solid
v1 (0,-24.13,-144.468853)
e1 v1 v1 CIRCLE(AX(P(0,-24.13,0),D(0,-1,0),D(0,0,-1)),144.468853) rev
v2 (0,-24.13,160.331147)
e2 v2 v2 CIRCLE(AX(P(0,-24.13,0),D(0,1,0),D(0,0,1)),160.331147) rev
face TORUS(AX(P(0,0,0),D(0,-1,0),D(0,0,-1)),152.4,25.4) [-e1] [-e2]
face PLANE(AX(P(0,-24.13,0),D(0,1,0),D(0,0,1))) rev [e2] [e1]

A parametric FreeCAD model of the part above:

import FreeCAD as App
import Part
import Sketcher

V = App.Vector
Q = App.Units.Quantity

doc = App.newDocument("Part")
body = doc.addObject("PartDesign::Body", "Body")

sketch1 = doc.addObject("Sketcher::SketchObject", "Sketch")
body.addObject(sketch1)
sketch1.AttachmentSupport = (doc.XY_Plane, [""])
sketch1.MapMode = "FlatFace"
sketch1.addGeometry(Part.Circle(V(152, 0, 0), V(0, 0, 1), 25), False)
sketch1.addConstraint([
    Sketcher.Constraint("PointOnObject", 0, 3, -1),
    Sketcher.Constraint("Diameter", 0, Q("2 in")),
    Sketcher.Constraint("DistanceX", -1, 1, 0, 3, Q("6 in")),
])
revolution = doc.addObject("PartDesign::Revolution", "Revolution")
body.addObject(revolution)
revolution.Profile = sketch1
revolution.ReferenceAxis = (sketch1, ["V_Axis"])
revolution.Angle = 360

sketch2 = doc.addObject("Sketcher::SketchObject", "Sketch001")
body.addObject(sketch2)
sketch2.AttachmentSupport = (doc.XZ_Plane, [""])
sketch2.MapMode = "FlatFace"
sketch2.AttachmentOffset = App.Placement(V(0, 0, 0.95 * 25.4), App.Rotation())
sketch2.addGeometry(Part.Circle(V(0, 0, 0), V(0, 0, 1), 237), False)
sketch2.addConstraint([
    Sketcher.Constraint("Coincident", 0, 3, -1, 1),
    Sketcher.Constraint("Diameter", 0, Q("474.67478 mm")),
])
pocket1 = doc.addObject("PartDesign::Pocket", "Pocket")
body.addObject(pocket1)
pocket1.Profile = sketch2
pocket1.Type = "ThroughAll"
pocket1.Reversed = True

doc.recompute()
